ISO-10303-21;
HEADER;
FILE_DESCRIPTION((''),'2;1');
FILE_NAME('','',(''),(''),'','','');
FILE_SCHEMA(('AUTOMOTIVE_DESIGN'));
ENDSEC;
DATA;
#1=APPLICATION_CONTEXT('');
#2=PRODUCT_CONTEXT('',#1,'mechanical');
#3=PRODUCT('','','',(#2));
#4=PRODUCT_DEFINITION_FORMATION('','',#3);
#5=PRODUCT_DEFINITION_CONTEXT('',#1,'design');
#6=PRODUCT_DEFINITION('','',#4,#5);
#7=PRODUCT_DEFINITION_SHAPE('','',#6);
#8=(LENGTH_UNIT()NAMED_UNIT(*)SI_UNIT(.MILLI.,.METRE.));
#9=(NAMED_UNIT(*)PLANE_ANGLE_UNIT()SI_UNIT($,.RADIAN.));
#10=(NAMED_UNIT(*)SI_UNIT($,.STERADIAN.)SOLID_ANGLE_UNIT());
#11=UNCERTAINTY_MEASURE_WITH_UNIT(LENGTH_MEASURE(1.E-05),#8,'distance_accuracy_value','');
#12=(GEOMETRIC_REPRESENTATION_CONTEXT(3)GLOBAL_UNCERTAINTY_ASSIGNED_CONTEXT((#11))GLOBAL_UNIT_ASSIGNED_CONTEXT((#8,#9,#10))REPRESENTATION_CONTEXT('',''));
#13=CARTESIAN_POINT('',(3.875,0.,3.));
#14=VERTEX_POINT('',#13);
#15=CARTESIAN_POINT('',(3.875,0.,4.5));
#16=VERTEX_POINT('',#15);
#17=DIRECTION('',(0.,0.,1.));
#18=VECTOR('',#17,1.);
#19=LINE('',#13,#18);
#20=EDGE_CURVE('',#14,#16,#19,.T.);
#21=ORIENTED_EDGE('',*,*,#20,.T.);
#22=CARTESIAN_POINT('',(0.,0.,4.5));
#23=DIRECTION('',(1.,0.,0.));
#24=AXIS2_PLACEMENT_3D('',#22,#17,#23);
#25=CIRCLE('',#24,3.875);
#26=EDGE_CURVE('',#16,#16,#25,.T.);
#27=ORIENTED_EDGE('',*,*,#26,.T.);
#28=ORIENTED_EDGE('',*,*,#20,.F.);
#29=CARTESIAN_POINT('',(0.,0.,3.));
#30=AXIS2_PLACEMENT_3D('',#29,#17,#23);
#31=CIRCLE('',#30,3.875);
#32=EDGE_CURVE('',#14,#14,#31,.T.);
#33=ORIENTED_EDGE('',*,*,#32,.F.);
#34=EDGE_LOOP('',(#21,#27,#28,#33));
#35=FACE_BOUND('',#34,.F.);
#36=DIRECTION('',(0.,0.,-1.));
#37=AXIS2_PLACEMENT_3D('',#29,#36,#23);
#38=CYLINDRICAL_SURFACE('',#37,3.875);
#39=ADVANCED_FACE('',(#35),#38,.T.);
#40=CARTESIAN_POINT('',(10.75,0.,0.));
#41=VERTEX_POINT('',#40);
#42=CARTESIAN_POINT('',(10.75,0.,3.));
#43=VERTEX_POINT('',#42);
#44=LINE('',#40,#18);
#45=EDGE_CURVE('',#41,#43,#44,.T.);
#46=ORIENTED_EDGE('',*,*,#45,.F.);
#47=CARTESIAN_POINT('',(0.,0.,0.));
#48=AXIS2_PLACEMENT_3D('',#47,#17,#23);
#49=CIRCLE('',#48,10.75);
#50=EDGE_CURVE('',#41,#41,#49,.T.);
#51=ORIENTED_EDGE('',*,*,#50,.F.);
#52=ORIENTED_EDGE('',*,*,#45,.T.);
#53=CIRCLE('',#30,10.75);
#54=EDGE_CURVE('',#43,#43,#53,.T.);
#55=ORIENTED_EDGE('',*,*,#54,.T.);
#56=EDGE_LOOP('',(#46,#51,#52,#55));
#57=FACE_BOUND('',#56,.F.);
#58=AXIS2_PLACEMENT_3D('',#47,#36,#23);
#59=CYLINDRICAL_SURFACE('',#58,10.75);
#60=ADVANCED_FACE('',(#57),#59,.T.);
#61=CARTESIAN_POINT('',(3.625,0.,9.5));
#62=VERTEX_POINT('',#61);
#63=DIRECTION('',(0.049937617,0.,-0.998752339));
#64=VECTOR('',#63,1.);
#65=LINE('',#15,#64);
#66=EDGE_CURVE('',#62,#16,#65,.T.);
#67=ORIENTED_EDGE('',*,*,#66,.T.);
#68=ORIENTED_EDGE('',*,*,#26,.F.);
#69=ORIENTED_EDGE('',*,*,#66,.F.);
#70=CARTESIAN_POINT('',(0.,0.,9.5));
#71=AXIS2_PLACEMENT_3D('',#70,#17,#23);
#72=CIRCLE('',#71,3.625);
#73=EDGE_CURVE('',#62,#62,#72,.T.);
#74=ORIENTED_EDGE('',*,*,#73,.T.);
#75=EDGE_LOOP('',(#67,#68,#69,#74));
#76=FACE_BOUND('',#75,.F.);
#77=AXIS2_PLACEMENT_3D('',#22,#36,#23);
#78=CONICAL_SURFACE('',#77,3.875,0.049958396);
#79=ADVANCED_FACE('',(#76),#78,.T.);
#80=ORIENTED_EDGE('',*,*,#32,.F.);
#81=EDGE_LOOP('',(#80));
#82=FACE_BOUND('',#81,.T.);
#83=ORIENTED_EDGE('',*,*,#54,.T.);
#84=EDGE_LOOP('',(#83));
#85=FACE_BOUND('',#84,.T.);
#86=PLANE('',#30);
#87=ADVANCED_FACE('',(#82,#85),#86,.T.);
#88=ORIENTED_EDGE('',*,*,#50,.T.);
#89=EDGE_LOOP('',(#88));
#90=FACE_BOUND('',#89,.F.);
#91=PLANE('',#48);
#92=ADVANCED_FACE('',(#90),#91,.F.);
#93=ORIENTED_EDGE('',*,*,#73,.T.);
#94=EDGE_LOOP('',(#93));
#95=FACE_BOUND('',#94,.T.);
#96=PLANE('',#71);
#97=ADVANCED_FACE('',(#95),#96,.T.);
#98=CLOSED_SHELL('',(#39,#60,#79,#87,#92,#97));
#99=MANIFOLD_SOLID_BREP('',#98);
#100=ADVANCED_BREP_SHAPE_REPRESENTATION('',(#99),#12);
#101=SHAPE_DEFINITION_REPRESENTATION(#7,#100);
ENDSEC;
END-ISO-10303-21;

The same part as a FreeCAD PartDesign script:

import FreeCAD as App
import Part
import Sketcher
Q = App.Units.Quantity


def edges_at(feature, points):
    """Names of the edges that pass closest to the given points."""
    edges = feature.Shape.Edges
    near = lambda p: min(range(len(edges)), key=lambda i: edges[i].distToShape(Part.Vertex(*p))[0])
    return sorted({f"Edge{near(p) + 1}" for p in points})

doc = App.newDocument("Part")
body = doc.addObject("PartDesign::Body", "Body")

# Sketch on XY plane
sketch1 = body.newObject("Sketcher::SketchObject", "Sketch")
sketch1.AttachmentSupport = (doc.getObject("XY_Plane"), [""])
sketch1.MapMode = "FlatFace"
sketch1.addGeometry(Part.Circle(App.Vector(0, 0, 0), App.Vector(0, 0, 1), 10.75), False)
sketch1.addConstraint([
    Sketcher.Constraint("Coincident", 0, 3, -1, 1),
    Sketcher.Constraint("Diameter", 0, Q("21.5 mm")),
])
pad1 = body.newObject("PartDesign::Pad", "Pad")
pad1.Profile = sketch1
pad1.Length = 3

# Sketch on XY plane
sketch2 = body.newObject("Sketcher::SketchObject", "Sketch001")
sketch2.AttachmentSupport = (doc.getObject("XY_Plane"), [""])
sketch2.MapMode = "FlatFace"
sketch2.AttachmentOffset = App.Placement(App.Vector(0, 0, 3), App.Rotation())
sketch2.addGeometry(Part.Circle(App.Vector(0, 0, 0), App.Vector(0, 0, 1), 3.875), False)
sketch2.addConstraint([
    Sketcher.Constraint("Coincident", 0, 3, -1, 1),
    Sketcher.Constraint("Diameter", 0, Q("7.75 mm")),
])
pad2 = body.newObject("PartDesign::Pad", "Pad001")
pad2.Profile = sketch2
pad2.Length = 6.5
doc.recompute()

chamfer = body.newObject("PartDesign::Chamfer", "Chamfer")
chamfer.Base = (pad2, edges_at(pad2, [(-3.875, 0, 9.5)]))
chamfer.ChamferType = "Two distances"
chamfer.Size = 0.25
chamfer.Size2 = 5
chamfer.FlipDirection = True

doc.recompute()
